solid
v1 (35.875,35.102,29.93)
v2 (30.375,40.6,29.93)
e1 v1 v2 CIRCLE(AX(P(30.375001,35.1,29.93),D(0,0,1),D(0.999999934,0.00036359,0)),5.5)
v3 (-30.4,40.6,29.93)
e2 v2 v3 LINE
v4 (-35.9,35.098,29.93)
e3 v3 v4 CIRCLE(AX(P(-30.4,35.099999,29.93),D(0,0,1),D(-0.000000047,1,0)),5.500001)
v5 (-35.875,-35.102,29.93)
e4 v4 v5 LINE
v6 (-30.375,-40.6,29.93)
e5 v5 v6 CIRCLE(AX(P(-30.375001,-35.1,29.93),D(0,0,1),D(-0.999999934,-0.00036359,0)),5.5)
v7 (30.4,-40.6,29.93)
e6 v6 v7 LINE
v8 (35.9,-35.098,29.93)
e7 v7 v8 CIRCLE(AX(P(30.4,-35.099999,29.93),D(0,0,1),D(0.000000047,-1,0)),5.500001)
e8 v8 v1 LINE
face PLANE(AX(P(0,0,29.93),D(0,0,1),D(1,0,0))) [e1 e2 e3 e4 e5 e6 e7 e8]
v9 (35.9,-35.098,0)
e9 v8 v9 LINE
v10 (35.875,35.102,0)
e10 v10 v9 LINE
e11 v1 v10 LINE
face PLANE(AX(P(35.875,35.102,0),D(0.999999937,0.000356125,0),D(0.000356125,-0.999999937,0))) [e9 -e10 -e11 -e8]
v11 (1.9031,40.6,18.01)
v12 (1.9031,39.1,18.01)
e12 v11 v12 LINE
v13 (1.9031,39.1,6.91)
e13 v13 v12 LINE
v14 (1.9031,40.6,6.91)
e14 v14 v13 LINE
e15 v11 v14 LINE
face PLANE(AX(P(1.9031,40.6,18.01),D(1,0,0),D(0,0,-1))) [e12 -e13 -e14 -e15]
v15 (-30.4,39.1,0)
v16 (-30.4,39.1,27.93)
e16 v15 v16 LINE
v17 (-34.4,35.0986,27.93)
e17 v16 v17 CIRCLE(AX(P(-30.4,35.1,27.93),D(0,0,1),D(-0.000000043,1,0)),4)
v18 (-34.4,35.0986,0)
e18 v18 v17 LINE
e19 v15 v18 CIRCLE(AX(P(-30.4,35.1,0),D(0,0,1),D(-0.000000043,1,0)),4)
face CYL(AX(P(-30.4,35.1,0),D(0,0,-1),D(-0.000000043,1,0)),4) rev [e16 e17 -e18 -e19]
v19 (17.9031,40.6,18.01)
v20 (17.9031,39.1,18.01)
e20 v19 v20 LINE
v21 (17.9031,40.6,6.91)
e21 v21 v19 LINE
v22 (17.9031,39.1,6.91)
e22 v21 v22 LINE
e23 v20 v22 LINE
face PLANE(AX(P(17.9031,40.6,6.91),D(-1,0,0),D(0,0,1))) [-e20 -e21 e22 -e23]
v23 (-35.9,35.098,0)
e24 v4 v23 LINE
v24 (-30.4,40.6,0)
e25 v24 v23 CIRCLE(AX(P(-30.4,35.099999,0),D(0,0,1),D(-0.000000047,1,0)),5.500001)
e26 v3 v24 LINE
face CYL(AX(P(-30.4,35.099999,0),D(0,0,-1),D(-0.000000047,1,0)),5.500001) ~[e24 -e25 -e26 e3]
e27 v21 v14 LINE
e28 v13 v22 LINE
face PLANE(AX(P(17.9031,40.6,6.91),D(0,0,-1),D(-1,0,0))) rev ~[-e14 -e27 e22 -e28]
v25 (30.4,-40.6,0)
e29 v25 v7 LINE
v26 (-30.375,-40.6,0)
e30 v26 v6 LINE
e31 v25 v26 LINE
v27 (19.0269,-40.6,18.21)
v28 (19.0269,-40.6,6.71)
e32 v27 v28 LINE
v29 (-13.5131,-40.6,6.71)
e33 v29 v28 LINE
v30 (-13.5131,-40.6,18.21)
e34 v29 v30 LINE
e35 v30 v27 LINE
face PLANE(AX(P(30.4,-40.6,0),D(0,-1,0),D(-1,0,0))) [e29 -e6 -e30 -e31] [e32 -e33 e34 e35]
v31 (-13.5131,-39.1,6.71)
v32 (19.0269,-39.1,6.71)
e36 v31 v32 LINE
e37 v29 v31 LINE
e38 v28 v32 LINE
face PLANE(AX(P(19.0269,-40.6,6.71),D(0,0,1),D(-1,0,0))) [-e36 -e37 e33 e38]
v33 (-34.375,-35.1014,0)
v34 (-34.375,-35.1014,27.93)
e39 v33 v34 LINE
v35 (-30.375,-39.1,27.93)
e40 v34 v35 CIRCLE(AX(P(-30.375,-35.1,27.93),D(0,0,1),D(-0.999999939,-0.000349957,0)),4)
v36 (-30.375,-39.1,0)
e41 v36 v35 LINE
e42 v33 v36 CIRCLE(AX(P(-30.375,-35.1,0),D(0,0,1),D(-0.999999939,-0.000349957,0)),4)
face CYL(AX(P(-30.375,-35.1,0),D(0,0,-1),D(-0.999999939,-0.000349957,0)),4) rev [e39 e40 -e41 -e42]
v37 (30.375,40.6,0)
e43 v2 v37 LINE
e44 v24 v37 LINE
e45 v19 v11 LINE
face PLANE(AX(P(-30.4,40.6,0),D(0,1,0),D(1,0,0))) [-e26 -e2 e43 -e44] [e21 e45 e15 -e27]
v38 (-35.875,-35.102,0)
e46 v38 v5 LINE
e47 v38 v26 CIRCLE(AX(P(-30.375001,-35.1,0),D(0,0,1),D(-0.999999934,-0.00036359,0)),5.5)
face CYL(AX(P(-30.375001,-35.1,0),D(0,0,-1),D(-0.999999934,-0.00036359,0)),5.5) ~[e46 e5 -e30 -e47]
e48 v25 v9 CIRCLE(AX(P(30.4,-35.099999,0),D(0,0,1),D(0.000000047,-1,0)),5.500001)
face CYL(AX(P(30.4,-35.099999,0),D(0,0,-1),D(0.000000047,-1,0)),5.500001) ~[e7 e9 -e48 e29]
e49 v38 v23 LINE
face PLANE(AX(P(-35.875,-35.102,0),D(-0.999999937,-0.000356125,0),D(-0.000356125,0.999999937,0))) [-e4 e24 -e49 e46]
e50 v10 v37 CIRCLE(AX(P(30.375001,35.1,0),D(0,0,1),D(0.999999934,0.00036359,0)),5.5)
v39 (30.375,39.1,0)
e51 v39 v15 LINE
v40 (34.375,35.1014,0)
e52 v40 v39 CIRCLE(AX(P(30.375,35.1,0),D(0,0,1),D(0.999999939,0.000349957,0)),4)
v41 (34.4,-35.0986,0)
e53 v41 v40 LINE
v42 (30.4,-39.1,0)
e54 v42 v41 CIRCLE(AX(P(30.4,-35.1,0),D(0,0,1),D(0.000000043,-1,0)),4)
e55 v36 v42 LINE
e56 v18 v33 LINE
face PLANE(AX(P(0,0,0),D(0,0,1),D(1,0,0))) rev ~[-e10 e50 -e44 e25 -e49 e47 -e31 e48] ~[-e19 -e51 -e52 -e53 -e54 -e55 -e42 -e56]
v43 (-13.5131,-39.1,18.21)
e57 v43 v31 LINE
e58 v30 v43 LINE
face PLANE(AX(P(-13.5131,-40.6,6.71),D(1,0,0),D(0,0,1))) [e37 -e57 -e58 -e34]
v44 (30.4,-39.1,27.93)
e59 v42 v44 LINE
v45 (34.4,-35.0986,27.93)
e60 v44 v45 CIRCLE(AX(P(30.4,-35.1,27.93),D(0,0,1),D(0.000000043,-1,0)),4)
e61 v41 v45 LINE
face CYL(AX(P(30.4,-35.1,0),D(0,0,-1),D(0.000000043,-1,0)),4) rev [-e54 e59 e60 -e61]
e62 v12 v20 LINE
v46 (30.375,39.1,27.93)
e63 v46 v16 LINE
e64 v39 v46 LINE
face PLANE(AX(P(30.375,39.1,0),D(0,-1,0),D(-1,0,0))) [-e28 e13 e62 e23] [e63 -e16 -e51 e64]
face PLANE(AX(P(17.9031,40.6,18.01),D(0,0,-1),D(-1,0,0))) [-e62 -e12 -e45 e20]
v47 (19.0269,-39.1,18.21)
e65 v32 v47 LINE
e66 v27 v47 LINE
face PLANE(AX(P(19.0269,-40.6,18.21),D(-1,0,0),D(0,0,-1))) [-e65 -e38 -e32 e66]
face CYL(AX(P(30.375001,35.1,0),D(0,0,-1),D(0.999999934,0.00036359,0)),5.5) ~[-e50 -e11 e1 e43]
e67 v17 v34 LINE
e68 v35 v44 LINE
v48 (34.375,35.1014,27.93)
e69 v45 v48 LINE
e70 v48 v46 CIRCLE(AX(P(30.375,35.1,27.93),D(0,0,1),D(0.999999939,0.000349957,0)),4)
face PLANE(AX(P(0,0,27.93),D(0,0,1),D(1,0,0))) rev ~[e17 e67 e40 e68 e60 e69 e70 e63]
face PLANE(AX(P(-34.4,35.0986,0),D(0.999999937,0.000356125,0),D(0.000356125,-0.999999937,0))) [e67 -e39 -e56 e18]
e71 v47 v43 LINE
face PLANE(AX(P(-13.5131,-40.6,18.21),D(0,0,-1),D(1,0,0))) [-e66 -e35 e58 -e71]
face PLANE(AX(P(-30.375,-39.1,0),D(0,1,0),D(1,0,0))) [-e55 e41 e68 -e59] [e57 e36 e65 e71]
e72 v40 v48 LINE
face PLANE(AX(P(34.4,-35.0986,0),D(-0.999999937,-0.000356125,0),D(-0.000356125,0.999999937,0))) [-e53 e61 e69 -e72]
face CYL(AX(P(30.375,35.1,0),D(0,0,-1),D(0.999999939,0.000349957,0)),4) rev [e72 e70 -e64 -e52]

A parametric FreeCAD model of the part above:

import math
import FreeCAD as App
import Part
import Sketcher
Q = App.Units.Quantity

doc = App.newDocument("Part")
body = doc.addObject("PartDesign::Body", "Body")

sketch1 = doc.addObject("Sketcher::SketchObject", "Sketch")
body.addObject(sketch1)
sketch1.AttachmentSupport = (doc.XY_Plane, [""])
sketch1.MapMode = "FlatFace"
sketch1.addGeometry([
    Part.LineSegment(App.Vector(-35.9, 35.1, 0), App.Vector(-35.9, -35.1, 0)),
    Part.ArcOfCircle(Part.Circle(App.Vector(-30.4, -35.1, 0), App.Vector(0, 0, 1), 5.5), math.radians(-180), math.radians(-90)),
    Part.LineSegment(App.Vector(-30.4, -40.6, 0), App.Vector(30.4, -40.6, 0)),
    Part.ArcOfCircle(Part.Circle(App.Vector(30.4, -35.1, 0), App.Vector(0, 0, 1), 5.5), math.radians(-90), math.radians(0)),
    Part.LineSegment(App.Vector(35.9, -35.1, 0), App.Vector(35.9, 35.1, 0)),
    Part.ArcOfCircle(Part.Circle(App.Vector(30.4, 35.1, 0), App.Vector(0, 0, 1), 5.5), math.radians(0), math.radians(90)),
    Part.LineSegment(App.Vector(30.4, 40.6, 0), App.Vector(-30.4, 40.6, 0)),
    Part.ArcOfCircle(Part.Circle(App.Vector(-30.4, 35.1, 0), App.Vector(0, 0, 1), 5.5), math.radians(90), math.radians(180)),
    Part.LineSegment(App.Vector(-30.4, 39.1, 0), App.Vector(30.4, 39.1, 0)),
    Part.ArcOfCircle(Part.Circle(App.Vector(30.4, 35.1, 0), App.Vector(0, 0, 1), 4), math.radians(0), math.radians(90)),
    Part.LineSegment(App.Vector(34.4, 35.1, 0), App.Vector(34.4, -35.1, 0)),
    Part.ArcOfCircle(Part.Circle(App.Vector(30.4, -35.1, 0), App.Vector(0, 0, 1), 4), math.radians(-90), math.radians(0)),
    Part.LineSegment(App.Vector(30.4, -39.1, 0), App.Vector(-30.4, -39.1, 0)),
    Part.ArcOfCircle(Part.Circle(App.Vector(-30.4, -35.1, 0), App.Vector(0, 0, 1), 4), math.radians(-180), math.radians(-90)),
    Part.LineSegment(App.Vector(-34.4, -35.1, 0), App.Vector(-34.4, 35.1, 0)),
    Part.ArcOfCircle(Part.Circle(App.Vector(-30.4, 35.1, 0), App.Vector(0, 0, 1), 4), math.radians(90), math.radians(180)),
], False)
sketch1.addConstraint([
    Sketcher.Constraint("Tangent", 0, 2, 1, 1),
    Sketcher.Constraint("Tangent", 1, 2, 2, 1),
    Sketcher.Constraint("Tangent", 2, 2, 3, 1),
    Sketcher.Constraint("Tangent", 3, 2, 4, 1),
    Sketcher.Constraint("Tangent", 4, 2, 5, 1),
    Sketcher.Constraint("Tangent", 5, 2, 6, 1),
    Sketcher.Constraint("Tangent", 6, 2, 7, 1),
    Sketcher.Constraint("Tangent", 7, 2, 0, 1),
    Sketcher.Constraint("Tangent", 8, 2, 9, 2),
    Sketcher.Constraint("Tangent", 9, 1, 10, 1),
    Sketcher.Constraint("Tangent", 10, 2, 11, 2),
    Sketcher.Constraint("Tangent", 11, 1, 12, 1),
    Sketcher.Constraint("Tangent", 12, 2, 13, 2),
    Sketcher.Constraint("Tangent", 13, 1, 14, 1),
    Sketcher.Constraint("Tangent", 14, 2, 15, 2),
    Sketcher.Constraint("Tangent", 15, 1, 8, 1),
    Sketcher.Constraint("Horizontal", 2),
    Sketcher.Constraint("Horizontal", 6),
    Sketcher.Constraint("Horizontal", 8),
    Sketcher.Constraint("Horizontal", 12),
    Sketcher.Constraint("Coincident", 9, 3, 5, 3),
    Sketcher.Constraint("Coincident", 11, 3, 3, 3),
    Sketcher.Constraint("Coincident", 13, 3, 1, 3),
    Sketcher.Constraint("Coincident", 15, 3, 7, 3),
    Sketcher.Constraint("Equal", 1, 3),
    Sketcher.Constraint("Equal", 3, 5),
    Sketcher.Constraint("Equal", 5, 7),
    Sketcher.Constraint("Equal", 9, 11),
    Sketcher.Constraint("Symmetric", 1, 3, 5, 3, -1, 1),
    Sketcher.Constraint("Parallel", 0, 4),
    Sketcher.Constraint("Radius", 9, 4.0),
    Sketcher.Constraint("Radius", 1, 5.5),
    Sketcher.Constraint("Distance", 0, 70.2),
    Sketcher.Constraint("DistanceX", -1, 1, 3, 3, 30.4),
    Sketcher.Constraint("Angle", 0, Q("-89.9796 deg")),
])
pad1 = doc.addObject("PartDesign::Pad", "Pad")
body.addObject(pad1)
pad1.Profile = sketch1
pad1.Length = 27.93

sketch2 = doc.addObject("Sketcher::SketchObject", "Sketch001")
body.addObject(sketch2)
sketch2.AttachmentSupport = (doc.XY_Plane, [""])
sketch2.MapMode = "FlatFace"
sketch2.AttachmentOffset = App.Placement(App.Vector(0, 0, 27.93), App.Rotation())
sketch2.addGeometry([
    Part.ArcOfCircle(Part.Circle(App.Vector(-30, 35, 0), App.Vector(0, 0, 1), 6), math.radians(90), math.radians(180)),
    Part.LineSegment(App.Vector(-36, 35, 0), App.Vector(-36, -35, 0)),
    Part.ArcOfCircle(Part.Circle(App.Vector(-30, -35, 0), App.Vector(0, 0, 1), 6), math.radians(-180), math.radians(-90)),
    Part.LineSegment(App.Vector(-30, -41, 0), App.Vector(30, -41, 0)),
    Part.ArcOfCircle(Part.Circle(App.Vector(30, -35, 0), App.Vector(0, 0, 1), 6), math.radians(-90), math.radians(0)),
    Part.LineSegment(App.Vector(36, -35, 0), App.Vector(36, 35, 0)),
    Part.ArcOfCircle(Part.Circle(App.Vector(30, 35, 0), App.Vector(0, 0, 1), 6), math.radians(0), math.radians(90)),
    Part.LineSegment(App.Vector(30, 41, 0), App.Vector(-30, 41, 0)),
], False)
sketch2.addConstraint([
    Sketcher.Constraint("Tangent", 0, 2, 1, 1),
    Sketcher.Constraint("Tangent", 1, 2, 2, 1),
    Sketcher.Constraint("Tangent", 2, 2, 3, 1),
    Sketcher.Constraint("Tangent", 3, 2, 4, 1),
    Sketcher.Constraint("Tangent", 4, 2, 5, 1),
    Sketcher.Constraint("Tangent", 5, 2, 6, 1),
    Sketcher.Constraint("Tangent", 6, 2, 7, 1),
    Sketcher.Constraint("Tangent", 7, 2, 0, 1),
    Sketcher.Constraint("Horizontal", 3),
    Sketcher.Constraint("Horizontal", 7),
    Sketcher.Constraint("Equal", 0, 2),
    Sketcher.Constraint("Equal", 2, 4),
    Sketcher.Constraint("Equal", 4, 6),
    Sketcher.Constraint("Symmetric", 0, 3, 4, 3, -1, 1),
    Sketcher.Constraint("Parallel", 1, 5),
    Sketcher.Constraint("Radius", 0, 5.5),
    Sketcher.Constraint("Distance", 1, 70.2),
    Sketcher.Constraint("DistanceX", 0, 3, -1, 1, 30.4),
    Sketcher.Constraint("Angle", 1, Q("-89.9796 deg")),
])
pad2 = doc.addObject("PartDesign::Pad", "Pad001")
body.addObject(pad2)
pad2.Profile = sketch2
pad2.Length = 2

sketch3 = doc.addObject("Sketcher::SketchObject", "Sketch002")
body.addObject(sketch3)
sketch3.AttachmentSupport = (doc.XZ_Plane, [""])
sketch3.MapMode = "FlatFace"
sketch3.AttachmentOffset = App.Placement(App.Vector(0, 0, -40.6), App.Rotation())
sketch3.addGeometry([
    Part.LineSegment(App.Vector(18, 18, 0), App.Vector(18, 7, 0)),
    Part.LineSegment(App.Vector(18, 7, 0), App.Vector(2, 7, 0)),
    Part.LineSegment(App.Vector(2, 7, 0), App.Vector(2, 18, 0)),
    Part.LineSegment(App.Vector(2, 18, 0), App.Vector(18, 18, 0)),
], False)
sketch3.addConstraint([
    Sketcher.Constraint("Coincident", 0, 2, 1, 1),
    Sketcher.Constraint("Coincident", 1, 2, 2, 1),
    Sketcher.Constraint("Coincident", 2, 2, 3, 1),
    Sketcher.Constraint("Coincident", 3, 2, 0, 1),
    Sketcher.Constraint("Vertical", 0),
    Sketcher.Constraint("Horizontal", 1),
    Sketcher.Constraint("Vertical", 2),
    Sketcher.Constraint("Horizontal", 3),
    Sketcher.Constraint("DistanceX", 1, 2, 1, 1, 16.0),
    Sketcher.Constraint("DistanceY", 0, 2, 0, 1, 11.1),
    Sketcher.Constraint("DistanceY", -1, 1, 0, 2, 6.91),
    Sketcher.Constraint("DistanceX", -1, 1, 0, 2, 17.903),
])
pocket1 = doc.addObject("PartDesign::Pocket", "Pocket")
body.addObject(pocket1)
pocket1.Profile = sketch3
pocket1.Length = 7.45
pocket1.Reversed = True

sketch4 = doc.addObject("Sketcher::SketchObject", "Sketch003")
body.addObject(sketch4)
sketch4.AttachmentSupport = (doc.XZ_Plane, [""])
sketch4.MapMode = "FlatFace"
sketch4.AttachmentOffset = App.Placement(App.Vector(0, 0, 40.6), App.Rotation())
sketch4.addGeometry([
    Part.LineSegment(App.Vector(19, 7, 0), App.Vector(19, 18, 0)),
    Part.LineSegment(App.Vector(19, 18, 0), App.Vector(-14, 18, 0)),
    Part.LineSegment(App.Vector(-14, 18, 0), App.Vector(-14, 7, 0)),
    Part.LineSegment(App.Vector(-14, 7, 0), App.Vector(19, 7, 0)),
], False)
sketch4.addConstraint([
    Sketcher.Constraint("Coincident", 0, 2, 1, 1),
    Sketcher.Constraint("Coincident", 1, 2, 2, 1),
    Sketcher.Constraint("Coincident", 2, 2, 3, 1),
    Sketcher.Constraint("Coincident", 3, 2, 0, 1),
    Sketcher.Constraint("Vertical", 0),
    Sketcher.Constraint("Horizontal", 1),
    Sketcher.Constraint("Vertical", 2),
    Sketcher.Constraint("Horizontal", 3),
    Sketcher.Constraint("DistanceY", 0, 1, 0, 2, 11.5),
    Sketcher.Constraint("DistanceX", 1, 2, 1, 1, 32.54),
    Sketcher.Constraint("DistanceY", -1, 1, 0, 2, 18.21),
    Sketcher.Constraint("DistanceX", -1, 1, 0, 2, 19.027),
])
pocket2 = doc.addObject("PartDesign::Pocket", "Pocket001")
body.addObject(pocket2)
pocket2.Profile = sketch4
pocket2.Length = 7.45

doc.recompute()
